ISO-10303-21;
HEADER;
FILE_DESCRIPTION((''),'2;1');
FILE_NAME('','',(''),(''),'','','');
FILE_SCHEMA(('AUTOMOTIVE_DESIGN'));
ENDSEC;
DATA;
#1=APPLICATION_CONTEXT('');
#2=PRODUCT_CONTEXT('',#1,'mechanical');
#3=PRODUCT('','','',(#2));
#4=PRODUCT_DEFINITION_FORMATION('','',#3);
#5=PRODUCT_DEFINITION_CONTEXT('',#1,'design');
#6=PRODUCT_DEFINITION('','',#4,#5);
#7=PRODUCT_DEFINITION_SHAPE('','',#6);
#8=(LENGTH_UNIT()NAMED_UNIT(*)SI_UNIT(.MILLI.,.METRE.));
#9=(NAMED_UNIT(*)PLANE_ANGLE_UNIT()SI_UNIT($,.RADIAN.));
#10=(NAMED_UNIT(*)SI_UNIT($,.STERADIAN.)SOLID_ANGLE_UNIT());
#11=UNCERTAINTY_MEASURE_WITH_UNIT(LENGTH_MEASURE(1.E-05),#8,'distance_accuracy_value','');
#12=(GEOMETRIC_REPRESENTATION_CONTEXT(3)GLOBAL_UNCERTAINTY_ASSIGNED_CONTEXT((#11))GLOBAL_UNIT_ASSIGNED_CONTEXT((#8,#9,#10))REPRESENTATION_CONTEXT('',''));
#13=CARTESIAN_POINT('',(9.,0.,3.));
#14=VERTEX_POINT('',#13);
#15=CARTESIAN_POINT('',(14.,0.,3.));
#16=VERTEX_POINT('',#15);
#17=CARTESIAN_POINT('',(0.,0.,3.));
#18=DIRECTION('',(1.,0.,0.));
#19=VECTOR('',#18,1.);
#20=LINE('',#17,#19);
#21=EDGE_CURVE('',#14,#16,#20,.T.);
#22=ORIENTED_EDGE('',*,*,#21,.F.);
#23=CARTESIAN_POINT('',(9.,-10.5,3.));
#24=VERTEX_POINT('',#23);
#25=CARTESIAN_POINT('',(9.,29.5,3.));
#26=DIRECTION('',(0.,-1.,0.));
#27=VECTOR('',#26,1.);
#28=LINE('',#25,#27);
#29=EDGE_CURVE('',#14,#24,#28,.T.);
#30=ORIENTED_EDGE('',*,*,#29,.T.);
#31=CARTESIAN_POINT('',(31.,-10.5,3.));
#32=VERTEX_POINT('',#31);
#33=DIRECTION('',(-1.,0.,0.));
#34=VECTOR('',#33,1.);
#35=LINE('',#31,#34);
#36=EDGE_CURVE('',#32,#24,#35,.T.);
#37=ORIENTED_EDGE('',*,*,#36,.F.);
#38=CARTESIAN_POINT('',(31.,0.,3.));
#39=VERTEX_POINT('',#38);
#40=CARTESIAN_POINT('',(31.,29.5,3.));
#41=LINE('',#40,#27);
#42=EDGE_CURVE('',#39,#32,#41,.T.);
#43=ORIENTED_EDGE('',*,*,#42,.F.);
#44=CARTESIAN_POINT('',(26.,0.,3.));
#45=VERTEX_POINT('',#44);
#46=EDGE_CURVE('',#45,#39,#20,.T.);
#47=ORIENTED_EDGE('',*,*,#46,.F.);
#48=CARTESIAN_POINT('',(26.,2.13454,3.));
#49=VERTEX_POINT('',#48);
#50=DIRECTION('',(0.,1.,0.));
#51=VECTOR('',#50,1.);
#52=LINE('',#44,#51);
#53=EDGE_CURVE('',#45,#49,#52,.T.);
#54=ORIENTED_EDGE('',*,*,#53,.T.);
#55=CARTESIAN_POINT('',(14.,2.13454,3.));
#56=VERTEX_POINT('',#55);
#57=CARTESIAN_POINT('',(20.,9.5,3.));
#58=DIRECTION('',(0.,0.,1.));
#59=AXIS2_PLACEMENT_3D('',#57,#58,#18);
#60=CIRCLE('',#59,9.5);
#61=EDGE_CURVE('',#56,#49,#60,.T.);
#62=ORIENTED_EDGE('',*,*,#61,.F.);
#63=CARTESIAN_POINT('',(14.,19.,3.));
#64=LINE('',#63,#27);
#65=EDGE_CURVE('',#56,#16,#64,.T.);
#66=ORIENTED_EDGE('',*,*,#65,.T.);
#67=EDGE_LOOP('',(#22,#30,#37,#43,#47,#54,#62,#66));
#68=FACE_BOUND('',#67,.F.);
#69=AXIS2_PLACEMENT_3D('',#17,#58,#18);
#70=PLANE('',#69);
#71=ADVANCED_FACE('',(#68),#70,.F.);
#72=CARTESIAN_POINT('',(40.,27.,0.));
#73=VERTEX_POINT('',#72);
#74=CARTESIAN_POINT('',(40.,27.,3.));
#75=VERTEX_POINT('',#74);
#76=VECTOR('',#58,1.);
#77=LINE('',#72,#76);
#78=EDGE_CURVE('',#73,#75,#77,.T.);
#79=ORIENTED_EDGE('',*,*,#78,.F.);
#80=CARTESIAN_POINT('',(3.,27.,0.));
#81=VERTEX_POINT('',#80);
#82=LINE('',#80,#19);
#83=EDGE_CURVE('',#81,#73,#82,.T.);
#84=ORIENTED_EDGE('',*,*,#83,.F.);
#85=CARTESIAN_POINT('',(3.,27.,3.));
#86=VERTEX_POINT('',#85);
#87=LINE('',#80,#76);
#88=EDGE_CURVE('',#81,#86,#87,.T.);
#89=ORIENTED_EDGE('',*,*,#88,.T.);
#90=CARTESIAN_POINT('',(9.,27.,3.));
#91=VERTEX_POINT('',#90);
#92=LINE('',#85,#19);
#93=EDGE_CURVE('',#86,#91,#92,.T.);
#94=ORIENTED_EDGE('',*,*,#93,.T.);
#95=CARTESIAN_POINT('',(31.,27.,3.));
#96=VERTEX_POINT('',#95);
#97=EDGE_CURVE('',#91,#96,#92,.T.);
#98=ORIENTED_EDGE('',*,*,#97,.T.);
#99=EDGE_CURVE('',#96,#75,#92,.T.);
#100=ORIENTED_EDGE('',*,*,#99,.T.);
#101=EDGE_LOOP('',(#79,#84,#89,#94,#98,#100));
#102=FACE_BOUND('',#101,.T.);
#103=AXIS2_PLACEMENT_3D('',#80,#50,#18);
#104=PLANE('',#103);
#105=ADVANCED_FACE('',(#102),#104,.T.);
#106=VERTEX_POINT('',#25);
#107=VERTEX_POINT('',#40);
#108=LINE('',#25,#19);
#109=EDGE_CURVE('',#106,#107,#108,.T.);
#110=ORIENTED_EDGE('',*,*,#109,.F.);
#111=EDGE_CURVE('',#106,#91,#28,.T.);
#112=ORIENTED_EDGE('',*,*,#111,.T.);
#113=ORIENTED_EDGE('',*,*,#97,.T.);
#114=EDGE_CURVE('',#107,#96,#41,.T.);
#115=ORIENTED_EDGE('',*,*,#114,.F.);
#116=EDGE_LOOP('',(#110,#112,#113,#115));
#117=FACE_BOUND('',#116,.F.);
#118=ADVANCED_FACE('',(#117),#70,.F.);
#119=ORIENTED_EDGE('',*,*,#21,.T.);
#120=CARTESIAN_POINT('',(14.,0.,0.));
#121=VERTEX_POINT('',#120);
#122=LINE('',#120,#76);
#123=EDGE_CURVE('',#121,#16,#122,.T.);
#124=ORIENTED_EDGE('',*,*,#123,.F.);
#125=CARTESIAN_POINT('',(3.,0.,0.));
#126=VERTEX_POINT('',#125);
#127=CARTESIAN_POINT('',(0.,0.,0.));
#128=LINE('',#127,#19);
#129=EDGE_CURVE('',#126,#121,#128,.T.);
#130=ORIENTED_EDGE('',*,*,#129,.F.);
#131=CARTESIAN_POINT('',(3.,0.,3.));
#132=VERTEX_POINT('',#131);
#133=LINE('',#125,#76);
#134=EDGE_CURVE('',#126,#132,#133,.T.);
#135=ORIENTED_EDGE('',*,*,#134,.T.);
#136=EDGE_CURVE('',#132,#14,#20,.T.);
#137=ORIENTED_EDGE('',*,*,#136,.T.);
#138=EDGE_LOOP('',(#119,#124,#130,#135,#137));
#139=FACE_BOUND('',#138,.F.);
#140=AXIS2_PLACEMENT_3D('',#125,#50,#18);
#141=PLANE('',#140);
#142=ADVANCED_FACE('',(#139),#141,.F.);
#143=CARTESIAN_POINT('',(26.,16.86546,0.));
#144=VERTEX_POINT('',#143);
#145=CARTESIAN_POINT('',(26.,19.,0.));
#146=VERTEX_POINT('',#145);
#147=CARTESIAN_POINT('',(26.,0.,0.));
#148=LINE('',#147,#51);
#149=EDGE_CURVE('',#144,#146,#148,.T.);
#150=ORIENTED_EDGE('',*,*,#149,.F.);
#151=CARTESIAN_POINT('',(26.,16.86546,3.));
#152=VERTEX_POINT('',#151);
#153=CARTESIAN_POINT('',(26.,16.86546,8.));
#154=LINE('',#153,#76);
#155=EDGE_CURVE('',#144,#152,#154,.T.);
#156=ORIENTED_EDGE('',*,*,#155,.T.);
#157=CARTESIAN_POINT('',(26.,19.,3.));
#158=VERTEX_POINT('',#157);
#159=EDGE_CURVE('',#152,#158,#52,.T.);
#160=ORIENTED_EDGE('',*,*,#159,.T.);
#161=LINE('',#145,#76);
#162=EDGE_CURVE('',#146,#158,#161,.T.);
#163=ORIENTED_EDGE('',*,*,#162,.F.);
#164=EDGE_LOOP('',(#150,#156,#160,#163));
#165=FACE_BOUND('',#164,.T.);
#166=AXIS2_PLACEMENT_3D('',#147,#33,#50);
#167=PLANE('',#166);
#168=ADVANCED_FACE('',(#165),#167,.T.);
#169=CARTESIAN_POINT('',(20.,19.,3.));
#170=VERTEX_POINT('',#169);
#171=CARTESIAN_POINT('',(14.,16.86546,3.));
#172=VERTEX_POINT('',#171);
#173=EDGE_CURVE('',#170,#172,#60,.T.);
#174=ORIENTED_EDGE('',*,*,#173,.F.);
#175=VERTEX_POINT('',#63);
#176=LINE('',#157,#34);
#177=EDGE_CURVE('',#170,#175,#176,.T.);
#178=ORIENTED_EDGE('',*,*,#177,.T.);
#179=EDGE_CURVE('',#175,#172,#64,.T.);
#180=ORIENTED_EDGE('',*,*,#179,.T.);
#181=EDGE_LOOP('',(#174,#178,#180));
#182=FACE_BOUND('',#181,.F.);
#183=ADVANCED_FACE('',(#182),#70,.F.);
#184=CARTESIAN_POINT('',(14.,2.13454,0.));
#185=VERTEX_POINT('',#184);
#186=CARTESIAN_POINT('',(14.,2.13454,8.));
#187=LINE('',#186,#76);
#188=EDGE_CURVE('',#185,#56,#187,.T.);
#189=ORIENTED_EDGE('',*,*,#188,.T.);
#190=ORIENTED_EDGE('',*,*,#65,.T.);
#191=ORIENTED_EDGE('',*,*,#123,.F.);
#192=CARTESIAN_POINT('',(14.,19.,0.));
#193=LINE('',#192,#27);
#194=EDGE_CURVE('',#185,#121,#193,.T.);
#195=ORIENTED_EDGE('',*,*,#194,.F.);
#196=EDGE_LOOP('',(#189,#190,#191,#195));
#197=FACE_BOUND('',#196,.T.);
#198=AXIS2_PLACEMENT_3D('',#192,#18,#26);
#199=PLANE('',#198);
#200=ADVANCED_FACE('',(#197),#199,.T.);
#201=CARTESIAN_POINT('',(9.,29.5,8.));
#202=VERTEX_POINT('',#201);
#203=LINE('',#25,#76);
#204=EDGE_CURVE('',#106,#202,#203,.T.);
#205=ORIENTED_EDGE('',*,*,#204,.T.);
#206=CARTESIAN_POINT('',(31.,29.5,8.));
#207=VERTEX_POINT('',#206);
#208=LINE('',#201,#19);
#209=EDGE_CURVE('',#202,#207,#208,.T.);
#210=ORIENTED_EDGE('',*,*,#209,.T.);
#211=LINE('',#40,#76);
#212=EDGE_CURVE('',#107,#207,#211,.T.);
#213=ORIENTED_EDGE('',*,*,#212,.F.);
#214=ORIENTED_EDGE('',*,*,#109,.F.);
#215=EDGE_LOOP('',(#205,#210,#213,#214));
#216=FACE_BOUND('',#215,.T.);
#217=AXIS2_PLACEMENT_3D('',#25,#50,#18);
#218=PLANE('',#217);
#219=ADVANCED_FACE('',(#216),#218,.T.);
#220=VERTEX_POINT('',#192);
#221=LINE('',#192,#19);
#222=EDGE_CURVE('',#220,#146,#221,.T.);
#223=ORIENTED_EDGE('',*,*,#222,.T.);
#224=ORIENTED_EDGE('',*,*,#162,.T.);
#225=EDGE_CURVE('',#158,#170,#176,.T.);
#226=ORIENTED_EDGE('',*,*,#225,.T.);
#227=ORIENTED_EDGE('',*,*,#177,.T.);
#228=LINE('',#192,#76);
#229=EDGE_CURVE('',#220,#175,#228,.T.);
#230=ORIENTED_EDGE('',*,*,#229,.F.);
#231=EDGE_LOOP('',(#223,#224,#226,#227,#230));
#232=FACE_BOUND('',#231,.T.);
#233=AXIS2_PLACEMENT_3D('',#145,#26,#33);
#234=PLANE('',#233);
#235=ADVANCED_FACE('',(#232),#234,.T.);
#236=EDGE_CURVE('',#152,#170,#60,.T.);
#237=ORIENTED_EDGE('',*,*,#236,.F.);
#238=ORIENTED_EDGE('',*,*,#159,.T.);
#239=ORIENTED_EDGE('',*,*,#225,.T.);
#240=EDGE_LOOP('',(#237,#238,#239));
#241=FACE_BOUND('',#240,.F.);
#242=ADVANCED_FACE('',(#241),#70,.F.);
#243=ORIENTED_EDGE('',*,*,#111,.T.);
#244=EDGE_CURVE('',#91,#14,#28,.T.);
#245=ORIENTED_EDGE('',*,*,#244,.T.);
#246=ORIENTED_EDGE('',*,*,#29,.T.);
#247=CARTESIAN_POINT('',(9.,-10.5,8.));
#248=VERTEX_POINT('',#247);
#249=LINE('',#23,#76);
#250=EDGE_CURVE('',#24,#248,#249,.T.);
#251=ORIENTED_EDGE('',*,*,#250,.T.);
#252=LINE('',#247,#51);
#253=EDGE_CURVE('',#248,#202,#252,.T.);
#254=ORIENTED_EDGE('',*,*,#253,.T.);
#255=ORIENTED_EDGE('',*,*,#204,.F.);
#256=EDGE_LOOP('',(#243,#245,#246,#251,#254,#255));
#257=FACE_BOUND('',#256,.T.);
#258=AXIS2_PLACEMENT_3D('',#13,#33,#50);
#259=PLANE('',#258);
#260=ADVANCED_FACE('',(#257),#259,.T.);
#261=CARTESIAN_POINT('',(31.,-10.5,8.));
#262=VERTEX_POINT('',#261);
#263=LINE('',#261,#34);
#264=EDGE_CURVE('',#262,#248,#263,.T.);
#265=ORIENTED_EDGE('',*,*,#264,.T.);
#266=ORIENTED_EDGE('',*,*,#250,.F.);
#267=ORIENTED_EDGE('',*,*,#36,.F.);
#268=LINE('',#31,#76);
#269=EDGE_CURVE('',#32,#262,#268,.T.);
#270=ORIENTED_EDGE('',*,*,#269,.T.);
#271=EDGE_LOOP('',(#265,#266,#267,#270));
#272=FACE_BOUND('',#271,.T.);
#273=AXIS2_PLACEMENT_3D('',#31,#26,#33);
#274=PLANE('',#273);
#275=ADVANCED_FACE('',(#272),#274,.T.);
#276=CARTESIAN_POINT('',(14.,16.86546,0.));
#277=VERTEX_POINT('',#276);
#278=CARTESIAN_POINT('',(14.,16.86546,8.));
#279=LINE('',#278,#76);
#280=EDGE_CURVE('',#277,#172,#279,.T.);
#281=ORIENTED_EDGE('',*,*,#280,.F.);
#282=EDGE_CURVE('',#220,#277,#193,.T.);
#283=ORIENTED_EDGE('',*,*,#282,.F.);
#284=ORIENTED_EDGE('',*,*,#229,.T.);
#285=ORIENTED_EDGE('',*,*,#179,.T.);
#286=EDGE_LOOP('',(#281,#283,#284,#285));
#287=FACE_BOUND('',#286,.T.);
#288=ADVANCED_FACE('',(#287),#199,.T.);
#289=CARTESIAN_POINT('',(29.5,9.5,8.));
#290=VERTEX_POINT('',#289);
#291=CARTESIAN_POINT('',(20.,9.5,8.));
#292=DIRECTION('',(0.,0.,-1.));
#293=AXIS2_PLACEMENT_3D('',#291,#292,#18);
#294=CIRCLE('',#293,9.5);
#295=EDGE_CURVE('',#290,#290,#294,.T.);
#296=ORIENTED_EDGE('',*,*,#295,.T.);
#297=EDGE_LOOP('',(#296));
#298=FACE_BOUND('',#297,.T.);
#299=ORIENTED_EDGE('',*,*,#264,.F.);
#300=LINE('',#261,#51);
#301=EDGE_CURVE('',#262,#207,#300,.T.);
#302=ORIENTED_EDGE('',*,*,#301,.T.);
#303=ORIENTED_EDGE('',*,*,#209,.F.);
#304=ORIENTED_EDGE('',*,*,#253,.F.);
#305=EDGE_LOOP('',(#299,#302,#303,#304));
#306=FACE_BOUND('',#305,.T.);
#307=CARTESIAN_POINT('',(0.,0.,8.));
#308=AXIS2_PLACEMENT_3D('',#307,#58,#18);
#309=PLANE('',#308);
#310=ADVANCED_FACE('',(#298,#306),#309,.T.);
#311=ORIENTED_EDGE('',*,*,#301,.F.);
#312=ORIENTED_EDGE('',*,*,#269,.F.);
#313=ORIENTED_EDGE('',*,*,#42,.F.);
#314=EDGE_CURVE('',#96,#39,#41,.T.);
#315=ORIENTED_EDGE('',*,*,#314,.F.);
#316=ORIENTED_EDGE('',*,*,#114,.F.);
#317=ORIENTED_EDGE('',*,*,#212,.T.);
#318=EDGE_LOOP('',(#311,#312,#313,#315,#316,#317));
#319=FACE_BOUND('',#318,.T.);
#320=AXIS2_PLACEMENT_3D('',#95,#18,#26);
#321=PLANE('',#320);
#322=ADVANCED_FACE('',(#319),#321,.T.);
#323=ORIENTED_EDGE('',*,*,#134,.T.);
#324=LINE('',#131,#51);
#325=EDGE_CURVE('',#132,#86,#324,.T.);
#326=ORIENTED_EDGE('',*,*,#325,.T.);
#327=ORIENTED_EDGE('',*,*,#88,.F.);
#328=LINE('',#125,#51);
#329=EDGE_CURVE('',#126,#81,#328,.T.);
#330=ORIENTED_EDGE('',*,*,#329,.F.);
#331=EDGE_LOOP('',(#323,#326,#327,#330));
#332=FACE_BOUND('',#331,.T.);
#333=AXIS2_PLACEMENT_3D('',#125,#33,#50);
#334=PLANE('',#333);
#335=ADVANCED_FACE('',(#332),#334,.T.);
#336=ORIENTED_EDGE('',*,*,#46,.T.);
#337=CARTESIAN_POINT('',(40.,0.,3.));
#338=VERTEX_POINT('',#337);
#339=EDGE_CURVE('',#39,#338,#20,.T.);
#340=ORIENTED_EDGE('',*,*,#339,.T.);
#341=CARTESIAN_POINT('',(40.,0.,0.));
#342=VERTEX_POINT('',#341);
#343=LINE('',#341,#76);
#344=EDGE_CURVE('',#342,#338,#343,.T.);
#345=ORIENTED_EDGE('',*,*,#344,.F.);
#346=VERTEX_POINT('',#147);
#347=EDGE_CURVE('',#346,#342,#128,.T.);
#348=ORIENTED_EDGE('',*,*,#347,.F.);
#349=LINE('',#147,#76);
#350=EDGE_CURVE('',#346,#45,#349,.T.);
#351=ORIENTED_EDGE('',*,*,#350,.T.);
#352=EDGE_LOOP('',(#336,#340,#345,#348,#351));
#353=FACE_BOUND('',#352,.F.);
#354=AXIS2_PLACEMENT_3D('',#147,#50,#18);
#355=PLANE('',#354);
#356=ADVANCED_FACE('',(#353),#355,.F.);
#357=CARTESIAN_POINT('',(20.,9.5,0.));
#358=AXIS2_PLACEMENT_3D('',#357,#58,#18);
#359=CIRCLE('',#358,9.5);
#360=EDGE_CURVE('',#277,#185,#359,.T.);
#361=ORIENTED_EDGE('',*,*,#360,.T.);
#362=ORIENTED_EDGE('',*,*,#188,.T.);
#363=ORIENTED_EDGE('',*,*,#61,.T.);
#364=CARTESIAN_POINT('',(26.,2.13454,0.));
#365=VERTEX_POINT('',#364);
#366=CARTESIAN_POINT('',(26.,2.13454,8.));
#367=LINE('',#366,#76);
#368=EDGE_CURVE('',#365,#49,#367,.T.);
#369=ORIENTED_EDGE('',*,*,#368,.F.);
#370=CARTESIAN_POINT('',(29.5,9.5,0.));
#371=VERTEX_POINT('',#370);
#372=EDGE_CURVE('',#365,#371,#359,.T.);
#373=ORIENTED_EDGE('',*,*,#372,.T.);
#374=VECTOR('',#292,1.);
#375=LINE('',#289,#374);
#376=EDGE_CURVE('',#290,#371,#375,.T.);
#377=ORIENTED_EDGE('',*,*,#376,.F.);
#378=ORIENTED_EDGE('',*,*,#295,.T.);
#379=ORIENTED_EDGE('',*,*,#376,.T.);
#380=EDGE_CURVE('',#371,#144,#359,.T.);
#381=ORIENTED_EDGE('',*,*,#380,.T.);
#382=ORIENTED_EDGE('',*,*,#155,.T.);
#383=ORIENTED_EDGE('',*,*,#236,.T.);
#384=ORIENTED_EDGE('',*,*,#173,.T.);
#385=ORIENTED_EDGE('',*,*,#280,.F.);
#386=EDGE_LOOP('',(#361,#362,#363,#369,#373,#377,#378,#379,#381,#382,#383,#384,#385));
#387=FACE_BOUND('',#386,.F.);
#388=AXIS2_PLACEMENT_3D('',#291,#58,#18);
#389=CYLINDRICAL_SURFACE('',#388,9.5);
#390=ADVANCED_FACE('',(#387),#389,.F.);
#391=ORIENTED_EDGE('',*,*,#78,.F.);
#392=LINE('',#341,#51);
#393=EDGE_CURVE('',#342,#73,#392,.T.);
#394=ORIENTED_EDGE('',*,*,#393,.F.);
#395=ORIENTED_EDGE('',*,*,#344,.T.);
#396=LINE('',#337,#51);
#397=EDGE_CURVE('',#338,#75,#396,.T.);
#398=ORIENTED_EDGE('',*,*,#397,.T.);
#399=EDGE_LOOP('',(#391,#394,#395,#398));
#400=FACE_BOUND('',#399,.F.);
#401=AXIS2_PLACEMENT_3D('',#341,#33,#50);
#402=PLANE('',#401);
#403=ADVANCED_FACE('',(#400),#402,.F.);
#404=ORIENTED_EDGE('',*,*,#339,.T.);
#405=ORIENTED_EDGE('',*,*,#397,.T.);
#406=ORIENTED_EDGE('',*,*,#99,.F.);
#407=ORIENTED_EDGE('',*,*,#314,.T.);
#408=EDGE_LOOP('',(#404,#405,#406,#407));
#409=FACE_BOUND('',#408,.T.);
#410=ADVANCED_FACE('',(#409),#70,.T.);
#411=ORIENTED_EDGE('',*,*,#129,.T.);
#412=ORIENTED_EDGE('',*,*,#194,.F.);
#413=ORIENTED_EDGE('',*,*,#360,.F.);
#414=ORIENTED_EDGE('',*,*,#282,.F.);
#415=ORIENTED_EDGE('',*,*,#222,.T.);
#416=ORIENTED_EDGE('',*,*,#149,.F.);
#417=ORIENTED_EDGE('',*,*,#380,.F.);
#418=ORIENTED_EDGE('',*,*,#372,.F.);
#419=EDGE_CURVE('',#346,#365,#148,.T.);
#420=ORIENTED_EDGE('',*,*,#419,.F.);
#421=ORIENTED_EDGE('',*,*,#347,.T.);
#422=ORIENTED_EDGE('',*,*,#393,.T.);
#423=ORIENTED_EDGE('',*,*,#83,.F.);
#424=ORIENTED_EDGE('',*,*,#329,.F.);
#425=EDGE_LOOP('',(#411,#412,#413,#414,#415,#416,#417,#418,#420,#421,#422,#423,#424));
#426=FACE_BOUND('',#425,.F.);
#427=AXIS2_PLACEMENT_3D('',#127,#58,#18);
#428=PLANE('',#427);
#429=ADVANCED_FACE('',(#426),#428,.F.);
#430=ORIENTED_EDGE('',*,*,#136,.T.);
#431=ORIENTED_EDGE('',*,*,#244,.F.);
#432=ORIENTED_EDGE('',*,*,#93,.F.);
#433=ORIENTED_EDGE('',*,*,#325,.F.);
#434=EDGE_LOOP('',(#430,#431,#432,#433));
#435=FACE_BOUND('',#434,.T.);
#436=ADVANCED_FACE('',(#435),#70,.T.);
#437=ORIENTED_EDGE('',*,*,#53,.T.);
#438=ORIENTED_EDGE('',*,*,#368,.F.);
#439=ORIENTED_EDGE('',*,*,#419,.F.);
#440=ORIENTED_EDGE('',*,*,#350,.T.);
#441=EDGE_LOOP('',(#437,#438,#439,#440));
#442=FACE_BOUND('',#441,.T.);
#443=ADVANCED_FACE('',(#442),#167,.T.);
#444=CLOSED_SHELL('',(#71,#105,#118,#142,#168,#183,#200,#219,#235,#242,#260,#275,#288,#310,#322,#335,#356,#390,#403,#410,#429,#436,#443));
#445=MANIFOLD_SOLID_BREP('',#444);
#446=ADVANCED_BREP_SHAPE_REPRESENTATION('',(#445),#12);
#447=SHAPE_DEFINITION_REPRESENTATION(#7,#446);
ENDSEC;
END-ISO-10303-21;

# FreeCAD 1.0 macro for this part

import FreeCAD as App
import Part
import Sketcher
from FreeCAD import Vector


def add_polygon(sketch, points):
    """Adds a closed chain of lines whose ends are joined by coincident constraints."""
    first, n = sketch.GeometryCount, len(points)
    for a, b in zip(points, points[1:] + points[:1]):
        sketch.addGeometry(Part.LineSegment(App.Vector(*a, 0), App.Vector(*b, 0)), False)
    for i in range(n):
        sketch.addConstraint(Sketcher.Constraint("Coincident", first + i, 2, first + (i + 1) % n, 1))

doc = App.newDocument("Part")
params = doc.addObject("Spreadsheet::Sheet", "Params")
for row, (alias, value) in enumerate([
    ("sketch1_width", "37 mm"),
    ("sketch1_height", "27 mm"),
    ("sketch1_width2", "12 mm"),
    ("sketch1_width3", "14 mm"),
    ("sketch1_height2", "19 mm"),
    ("pad1_length", "3 mm"),
    ("sketch2_width", "22 mm"),
    ("sketch2_height", "40 mm"),
    ("pad2_length", "5 mm"),
    ("sketch3_diameter", "19 mm"),
    ("pocket1_length", "8 mm"),
], start=1):
    params.set(f"A{row}", alias)
    params.set(f"B{row}", "=" + value)
    params.setAlias(f"B{row}", alias)

body = doc.addObject("PartDesign::Body", "Body")

# Sketch on XY plane
sketch1 = body.newObject("Sketcher::SketchObject", "Sketch")
sketch1.AttachmentSupport = (doc.getObject("XY_Plane"), [""])
sketch1.MapMode = "FlatFace"
add_polygon(sketch1, [(14, 19), (26, 19), (26, 0), (40, 0), (40, 27), (3, 27), (3, 0), (14, 0)])  # lines 0-7
sketch1.addConstraint(Sketcher.Constraint("Horizontal", 0))
sketch1.addConstraint(Sketcher.Constraint("Vertical", 1))
sketch1.addConstraint(Sketcher.Constraint("Horizontal", 2))
sketch1.addConstraint(Sketcher.Constraint("Vertical", 3))
sketch1.addConstraint(Sketcher.Constraint("Horizontal", 4))
sketch1.addConstraint(Sketcher.Constraint("Vertical", 5))
sketch1.addConstraint(Sketcher.Constraint("Horizontal", 6))
sketch1.addConstraint(Sketcher.Constraint("Vertical", 7))
sketch1.addConstraint(Sketcher.Constraint("PointOnObject", 1, 2, -1))
sketch1.addConstraint(Sketcher.Constraint("PointOnObject", 5, 2, -1))
sketch1.addConstraint(Sketcher.Constraint("DistanceX", 4, 2, 4, 1, 37.0))
sketch1.addConstraint(Sketcher.Constraint("DistanceY", 3, 1, 3, 2, 27.0))
sketch1.addConstraint(Sketcher.Constraint("DistanceX", 0, 1, 0, 2, 12.0))
sketch1.addConstraint(Sketcher.Constraint("DistanceX", 2, 1, 2, 2, 14.0))
sketch1.addConstraint(Sketcher.Constraint("DistanceY", 1, 2, 1, 1, 19.0))
sketch1.addConstraint(Sketcher.Constraint("DistanceX", -1, 1, 0, 2, 26.0))
sketch1.setExpression("Constraints[18]", "Params.sketch1_width")
sketch1.setExpression("Constraints[19]", "Params.sketch1_height")
sketch1.setExpression("Constraints[20]", "Params.sketch1_width2")
sketch1.setExpression("Constraints[21]", "Params.sketch1_width3")
sketch1.setExpression("Constraints[22]", "Params.sketch1_height2")
pad1 = body.newObject("PartDesign::Pad", "Pad")
pad1.Profile = sketch1
pad1.setExpression("Length", "Params.pad1_length")

# Sketch on XY plane
sketch2 = body.newObject("Sketcher::SketchObject", "Sketch001")
sketch2.AttachmentSupport = (doc.getObject("XY_Plane"), [""])
sketch2.MapMode = "FlatFace"
sketch2.AttachmentOffset = App.Placement(Vector(0, 0, 3), App.Rotation())
add_polygon(sketch2, [(9, -10), (31, -10), (31, 30), (9, 30)])  # lines 0-3
sketch2.addConstraint(Sketcher.Constraint("Horizontal", 0))
sketch2.addConstraint(Sketcher.Constraint("Vertical", 1))
sketch2.addConstraint(Sketcher.Constraint("Horizontal", 2))
sketch2.addConstraint(Sketcher.Constraint("Vertical", 3))
sketch2.addConstraint(Sketcher.Constraint("DistanceX", 0, 1, 0, 2, 22.0))
sketch2.addConstraint(Sketcher.Constraint("DistanceY", 1, 1, 1, 2, 40.0))
sketch2.addConstraint(Sketcher.Constraint("DistanceX", -1, 1, 0, 2, 31.0))
sketch2.addConstraint(Sketcher.Constraint("DistanceY", 0, 2, -1, 1, 10.5))
sketch2.setExpression("Constraints[8]", "Params.sketch2_width")
sketch2.setExpression("Constraints[9]", "Params.sketch2_height")
pad2 = body.newObject("PartDesign::Pad", "Pad001")
pad2.Profile = sketch2
pad2.setExpression("Length", "Params.pad2_length")

# Sketch on XY plane
sketch3 = body.newObject("Sketcher::SketchObject", "Sketch002")
sketch3.AttachmentSupport = (doc.getObject("XY_Plane"), [""])
sketch3.MapMode = "FlatFace"
sketch3.AttachmentOffset = App.Placement(Vector(0, 0, 8), App.Rotation())
sketch3.addGeometry(Part.Circle(Vector(20, 10, 0), Vector(0, 0, 1), 10), False)
sketch3.addConstraint(Sketcher.Constraint("Diameter", 0, 19.0))
sketch3.addConstraint(Sketcher.Constraint("DistanceX", -1, 1, 0, 3, 20.0))
sketch3.addConstraint(Sketcher.Constraint("DistanceY", -1, 1, 0, 3, 9.5))
sketch3.setExpression("Constraints[0]", "Params.sketch3_diameter")
pocket1 = body.newObject("PartDesign::Pocket", "Pocket")
pocket1.Profile = sketch3
pocket1.setExpression("Length", "Params.pocket1_length")

doc.recompute()
